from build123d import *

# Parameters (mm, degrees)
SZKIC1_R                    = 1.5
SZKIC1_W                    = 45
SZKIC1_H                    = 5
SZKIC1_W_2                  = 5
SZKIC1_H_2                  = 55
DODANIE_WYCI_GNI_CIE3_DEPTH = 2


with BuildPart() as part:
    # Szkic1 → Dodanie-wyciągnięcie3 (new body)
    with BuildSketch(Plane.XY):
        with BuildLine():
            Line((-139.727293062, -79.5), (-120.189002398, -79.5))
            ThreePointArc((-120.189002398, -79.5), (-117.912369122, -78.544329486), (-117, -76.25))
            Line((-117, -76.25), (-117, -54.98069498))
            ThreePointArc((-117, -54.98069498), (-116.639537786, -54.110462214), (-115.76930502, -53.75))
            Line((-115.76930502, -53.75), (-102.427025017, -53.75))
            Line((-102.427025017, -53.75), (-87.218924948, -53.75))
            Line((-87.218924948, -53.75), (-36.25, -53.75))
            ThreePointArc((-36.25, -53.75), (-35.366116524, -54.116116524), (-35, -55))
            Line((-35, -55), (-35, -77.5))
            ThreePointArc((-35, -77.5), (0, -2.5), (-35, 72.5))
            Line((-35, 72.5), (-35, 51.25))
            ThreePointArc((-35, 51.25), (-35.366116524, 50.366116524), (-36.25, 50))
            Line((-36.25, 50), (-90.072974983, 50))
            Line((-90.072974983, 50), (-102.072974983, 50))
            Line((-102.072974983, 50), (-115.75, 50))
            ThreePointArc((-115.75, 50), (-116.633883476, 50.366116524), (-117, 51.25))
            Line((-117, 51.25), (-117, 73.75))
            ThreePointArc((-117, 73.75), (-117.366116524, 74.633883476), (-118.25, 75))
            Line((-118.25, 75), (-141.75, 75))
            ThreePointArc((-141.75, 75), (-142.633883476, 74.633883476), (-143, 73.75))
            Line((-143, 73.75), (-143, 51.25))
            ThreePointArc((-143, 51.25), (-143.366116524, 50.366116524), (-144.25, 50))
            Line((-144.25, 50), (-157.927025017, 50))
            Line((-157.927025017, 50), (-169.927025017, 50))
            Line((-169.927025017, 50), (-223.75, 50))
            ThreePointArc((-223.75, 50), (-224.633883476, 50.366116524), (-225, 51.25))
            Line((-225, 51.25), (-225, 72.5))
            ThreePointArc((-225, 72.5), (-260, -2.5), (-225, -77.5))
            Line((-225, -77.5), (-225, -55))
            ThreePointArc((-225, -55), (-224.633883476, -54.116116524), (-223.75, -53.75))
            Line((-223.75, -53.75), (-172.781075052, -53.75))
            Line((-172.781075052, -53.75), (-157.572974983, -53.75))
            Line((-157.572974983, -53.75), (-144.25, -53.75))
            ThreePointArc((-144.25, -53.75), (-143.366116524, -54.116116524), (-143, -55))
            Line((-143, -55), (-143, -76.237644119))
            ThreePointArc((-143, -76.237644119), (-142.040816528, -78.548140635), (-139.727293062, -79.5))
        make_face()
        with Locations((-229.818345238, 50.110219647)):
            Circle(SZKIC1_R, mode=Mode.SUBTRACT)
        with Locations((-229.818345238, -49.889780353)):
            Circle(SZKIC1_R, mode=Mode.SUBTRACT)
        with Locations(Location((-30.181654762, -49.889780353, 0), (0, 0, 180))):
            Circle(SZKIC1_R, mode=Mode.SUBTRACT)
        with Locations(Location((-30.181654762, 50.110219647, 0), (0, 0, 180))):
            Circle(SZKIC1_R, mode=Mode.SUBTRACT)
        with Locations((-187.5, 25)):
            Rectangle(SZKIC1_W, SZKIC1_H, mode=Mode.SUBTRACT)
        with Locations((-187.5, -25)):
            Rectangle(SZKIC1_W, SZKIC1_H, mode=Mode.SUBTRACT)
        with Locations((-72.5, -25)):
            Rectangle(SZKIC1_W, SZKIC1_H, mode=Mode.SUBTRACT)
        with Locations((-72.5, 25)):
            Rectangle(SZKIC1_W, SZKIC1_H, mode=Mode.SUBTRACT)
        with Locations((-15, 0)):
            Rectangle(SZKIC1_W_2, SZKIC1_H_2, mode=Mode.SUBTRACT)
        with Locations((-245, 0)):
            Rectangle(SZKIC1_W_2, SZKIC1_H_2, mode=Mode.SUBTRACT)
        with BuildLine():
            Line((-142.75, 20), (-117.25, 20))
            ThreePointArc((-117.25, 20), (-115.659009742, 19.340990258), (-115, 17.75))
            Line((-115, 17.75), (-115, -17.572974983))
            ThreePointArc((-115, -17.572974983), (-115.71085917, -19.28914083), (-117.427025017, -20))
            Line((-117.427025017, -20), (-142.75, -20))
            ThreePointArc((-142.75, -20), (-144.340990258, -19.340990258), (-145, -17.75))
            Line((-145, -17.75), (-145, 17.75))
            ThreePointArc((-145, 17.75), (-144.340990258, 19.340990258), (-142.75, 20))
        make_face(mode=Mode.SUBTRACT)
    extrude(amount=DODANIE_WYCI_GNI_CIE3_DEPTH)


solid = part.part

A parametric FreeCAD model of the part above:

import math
import FreeCAD as App
import Part
import Sketcher
Q = App.Units.Quantity

doc = App.newDocument("Part")
params = doc.addObject("Spreadsheet::Sheet", "Params")
for row, (alias, value) in enumerate([
    ("sketch1_diameter", "3 mm"),
    ("sketch1_width", "5 mm"),
    ("sketch1_width2", "45 mm"),
    ("sketch1_height", "55 mm"),
    ("sketch1_radius", "1.25 mm"),
    ("pad1_length", "2 mm"),
], start=1):
    params.set(f"A{row}", alias)
    params.set(f"B{row}", "=" + value)
    params.setAlias(f"B{row}", alias)

body = doc.addObject("PartDesign::Body", "Body")

# Sketch on XY plane
sketch1 = body.newObject("Sketcher::SketchObject", "Sketch")
sketch1.AttachmentSupport = (doc.getObject("XY_Plane"), [""])
sketch1.MapMode = "FlatFace"
sketch1.addGeometry(Part.LineSegment(App.Vector(-139.727293, -79.5, 0), App.Vector(-120.189002, -79.5, 0)), False)
sketch1.addGeometry(Part.ArcOfCircle(Part.Circle(App.Vector(-120.189002, -76.310425, 0), App.Vector(0, 0, 1), 3.189575), math.radians(-90), math.radians(1.08551)), False)
sketch1.addGeometry(Part.LineSegment(App.Vector(-117, -76.25, 0), App.Vector(-117, -54.980695, 0)), False)
sketch1.addGeometry(Part.ArcOfCircle(Part.Circle(App.Vector(-115.769305, -54.980695, 0), App.Vector(0, 0, 1), 1.230695), math.radians(90), math.radians(180)), False)
sketch1.addGeometry(Part.LineSegment(App.Vector(-115.769305, -53.75, 0), App.Vector(-36.25, -53.75, 0)), False)
sketch1.addGeometry(Part.ArcOfCircle(Part.Circle(App.Vector(-36.25, -55, 0), App.Vector(0, 0, 1), 1.25), math.radians(0), math.radians(90)), False)
sketch1.addGeometry(Part.LineSegment(App.Vector(-35, -55, 0), App.Vector(-35, -77.5, 0)), False)
sketch1.addGeometry(Part.ArcOfCircle(Part.Circle(App.Vector(-97.857143, -2.5, 0), App.Vector(0, 0, 1), 97.857143), math.radians(-50.033787), math.radians(50.033787)), False)
sketch1.addGeometry(Part.LineSegment(App.Vector(-35, 72.5, 0), App.Vector(-35, 51.25, 0)), False)
sketch1.addGeometry(Part.ArcOfCircle(Part.Circle(App.Vector(-36.25, 51.25, 0), App.Vector(0, 0, 1), 1.25), math.radians(-90), math.radians(0)), False)
sketch1.addGeometry(Part.LineSegment(App.Vector(-36.25, 50, 0), App.Vector(-115.75, 50, 0)), False)
sketch1.addGeometry(Part.ArcOfCircle(Part.Circle(App.Vector(-115.75, 51.25, 0), App.Vector(0, 0, 1), 1.25), math.radians(-180), math.radians(-90)), False)
sketch1.addGeometry(Part.LineSegment(App.Vector(-117, 51.25, 0), App.Vector(-117, 73.75, 0)), False)
sketch1.addGeometry(Part.ArcOfCircle(Part.Circle(App.Vector(-118.25, 73.75, 0), App.Vector(0, 0, 1), 1.25), math.radians(0), math.radians(90)), False)
sketch1.addGeometry(Part.LineSegment(App.Vector(-118.25, 75, 0), App.Vector(-141.75, 75, 0)), False)
sketch1.addGeometry(Part.ArcOfCircle(Part.Circle(App.Vector(-141.75, 73.75, 0), App.Vector(0, 0, 1), 1.25), math.radians(90), math.radians(180)), False)
sketch1.addGeometry(Part.LineSegment(App.Vector(-143, 73.75, 0), App.Vector(-143, 51.25, 0)), False)
sketch1.addGeometry(Part.ArcOfCircle(Part.Circle(App.Vector(-144.25, 51.25, 0), App.Vector(0, 0, 1), 1.25), math.radians(-90), math.radians(0)), False)
sketch1.addGeometry(Part.LineSegment(App.Vector(-144.25, 50, 0), App.Vector(-223.75, 50, 0)), False)
sketch1.addGeometry(Part.ArcOfCircle(Part.Circle(App.Vector(-223.75, 51.25, 0), App.Vector(0, 0, 1), 1.25), math.radians(-180), math.radians(-90)), False)
sketch1.addGeometry(Part.LineSegment(App.Vector(-225, 51.25, 0), App.Vector(-225, 72.5, 0)), False)
sketch1.addGeometry(Part.ArcOfCircle(Part.Circle(App.Vector(-162.142857, -2.5, 0), App.Vector(0, 0, 1), 97.857143), math.radians(129.966213), math.radians(230.033787)), False)
sketch1.addGeometry(Part.LineSegment(App.Vector(-225, -77.5, 0), App.Vector(-225, -55, 0)), False)
sketch1.addGeometry(Part.ArcOfCircle(Part.Circle(App.Vector(-223.75, -55, 0), App.Vector(0, 0, 1), 1.25), math.radians(90), math.radians(180)), False)
sketch1.addGeometry(Part.LineSegment(App.Vector(-223.75, -53.75, 0), App.Vector(-144.25, -53.75, 0)), False)
sketch1.addGeometry(Part.ArcOfCircle(Part.Circle(App.Vector(-144.25, -55, 0), App.Vector(0, 0, 1), 1.25), math.radians(0), math.radians(90)), False)
sketch1.addGeometry(Part.LineSegment(App.Vector(-143, -55, 0), App.Vector(-143, -76.237644, 0)), False)
sketch1.addGeometry(Part.ArcOfCircle(Part.Circle(App.Vector(-139.737628, -76.237644, 0), App.Vector(0, 0, 1), 3.262372), math.radians(180), math.radians(270.181504)), False)
sketch1.addGeometry(Part.Circle(App.Vector(-229.818345, -49.88978, 0), App.Vector(0, 0, 1), 1.5), False)
sketch1.addGeometry(Part.LineSegment(App.Vector(-242.5, -27.5, 0), App.Vector(-247.5, -27.5, 0)), False)
sketch1.addGeometry(Part.LineSegment(App.Vector(-247.5, -27.5, 0), App.Vector(-247.5, 27.5, 0)), False)
sketch1.addGeometry(Part.LineSegment(App.Vector(-247.5, 27.5, 0), App.Vector(-242.5, 27.5, 0)), False)
sketch1.addGeometry(Part.LineSegment(App.Vector(-242.5, 27.5, 0), App.Vector(-242.5, -27.5, 0)), False)
sketch1.addGeometry(Part.LineSegment(App.Vector(-165, -27.5, 0), App.Vector(-210, -27.5, 0)), False)
sketch1.addGeometry(Part.LineSegment(App.Vector(-210, -27.5, 0), App.Vector(-210, -22.5, 0)), False)
sketch1.addGeometry(Part.LineSegment(App.Vector(-210, -22.5, 0), App.Vector(-165, -22.5, 0)), False)
sketch1.addGeometry(Part.LineSegment(App.Vector(-165, -22.5, 0), App.Vector(-165, -27.5, 0)), False)
sketch1.addGeometry(Part.Circle(App.Vector(-30.181655, -49.88978, 0), App.Vector(0, 0, 1), 1.5), False)
sketch1.addGeometry(Part.LineSegment(App.Vector(-50, -27.5, 0), App.Vector(-95, -27.5, 0)), False)
sketch1.addGeometry(Part.LineSegment(App.Vector(-95, -27.5, 0), App.Vector(-95, -22.5, 0)), False)
sketch1.addGeometry(Part.LineSegment(App.Vector(-95, -22.5, 0), App.Vector(-50, -22.5, 0)), False)
sketch1.addGeometry(Part.LineSegment(App.Vector(-50, -22.5, 0), App.Vector(-50, -27.5, 0)), False)
sketch1.addGeometry(Part.ArcOfCircle(Part.Circle(App.Vector(-142.75, 17.75, 0), App.Vector(0, 0, 1), 2.25), math.radians(90), math.radians(180)), False)
sketch1.addGeometry(Part.LineSegment(App.Vector(-142.75, 20, 0), App.Vector(-117.25, 20, 0)), False)
sketch1.addGeometry(Part.ArcOfCircle(Part.Circle(App.Vector(-117.25, 17.75, 0), App.Vector(0, 0, 1), 2.25), math.radians(0), math.radians(90)), False)
sketch1.addGeometry(Part.LineSegment(App.Vector(-115, 17.75, 0), App.Vector(-115, -17.572975, 0)), False)
sketch1.addGeometry(Part.ArcOfCircle(Part.Circle(App.Vector(-117.427025, -17.572975, 0), App.Vector(0, 0, 1), 2.427025), math.radians(-90), math.radians(0)), False)
sketch1.addGeometry(Part.LineSegment(App.Vector(-117.427025, -20, 0), App.Vector(-142.75, -20, 0)), False)
sketch1.addGeometry(Part.ArcOfCircle(Part.Circle(App.Vector(-142.75, -17.75, 0), App.Vector(0, 0, 1), 2.25), math.radians(180), math.radians(270)), False)
sketch1.addGeometry(Part.LineSegment(App.Vector(-145, -17.75, 0), App.Vector(-145, 17.75, 0)), False)
sketch1.addGeometry(Part.LineSegment(App.Vector(-12.5, -27.5, 0), App.Vector(-17.5, -27.5, 0)), False)
sketch1.addGeometry(Part.LineSegment(App.Vector(-17.5, -27.5, 0), App.Vector(-17.5, 27.5, 0)), False)
sketch1.addGeometry(Part.LineSegment(App.Vector(-17.5, 27.5, 0), App.Vector(-12.5, 27.5, 0)), False)
sketch1.addGeometry(Part.LineSegment(App.Vector(-12.5, 27.5, 0), App.Vector(-12.5, -27.5, 0)), False)
sketch1.addGeometry(Part.LineSegment(App.Vector(-165, 22.5, 0), App.Vector(-210, 22.5, 0)), False)
sketch1.addGeometry(Part.LineSegment(App.Vector(-210, 22.5, 0), App.Vector(-210, 27.5, 0)), False)
sketch1.addGeometry(Part.LineSegment(App.Vector(-210, 27.5, 0), App.Vector(-165, 27.5, 0)), False)
sketch1.addGeometry(Part.LineSegment(App.Vector(-165, 27.5, 0), App.Vector(-165, 22.5, 0)), False)
sketch1.addGeometry(Part.Circle(App.Vector(-229.818345, 50.11022, 0), App.Vector(0, 0, 1), 1.5), False)
sketch1.addGeometry(Part.LineSegment(App.Vector(-50, 22.5, 0), App.Vector(-95, 22.5, 0)), False)
sketch1.addGeometry(Part.LineSegment(App.Vector(-95, 22.5, 0), App.Vector(-95, 27.5, 0)), False)
sketch1.addGeometry(Part.LineSegment(App.Vector(-95, 27.5, 0), App.Vector(-50, 27.5, 0)), False)
sketch1.addGeometry(Part.LineSegment(App.Vector(-50, 27.5, 0), App.Vector(-50, 22.5, 0)), False)
sketch1.addGeometry(Part.Circle(App.Vector(-30.181655, 50.11022, 0), App.Vector(0, 0, 1), 1.5), False)
sketch1.addConstraint(Sketcher.Constraint("Tangent", 0, 2, 1, 1))
sketch1.addConstraint(Sketcher.Constraint("Coincident", 1, 2, 2, 1))
sketch1.addConstraint(Sketcher.Constraint("Tangent", 2, 2, 3, 2))
sketch1.addConstraint(Sketcher.Constraint("Tangent", 3, 1, 4, 1))
sketch1.addConstraint(Sketcher.Constraint("Tangent", 4, 2, 5, 2))
sketch1.addConstraint(Sketcher.Constraint("Tangent", 5, 1, 6, 1))
sketch1.addConstraint(Sketcher.Constraint("Coincident", 6, 2, 7, 1))
sketch1.addConstraint(Sketcher.Constraint("Coincident", 7, 2, 8, 1))
sketch1.addConstraint(Sketcher.Constraint("Tangent", 8, 2, 9, 2))
sketch1.addConstraint(Sketcher.Constraint("Tangent", 9, 1, 10, 1))
sketch1.addConstraint(Sketcher.Constraint("Tangent", 10, 2, 11, 2))
sketch1.addConstraint(Sketcher.Constraint("Tangent", 11, 1, 12, 1))
sketch1.addConstraint(Sketcher.Constraint("Tangent", 12, 2, 13, 1))
sketch1.addConstraint(Sketcher.Constraint("Tangent", 13, 2, 14, 1))
sketch1.addConstraint(Sketcher.Constraint("Tangent", 14, 2, 15, 1))
sketch1.addConstraint(Sketcher.Constraint("Tangent", 15, 2, 16, 1))
sketch1.addConstraint(Sketcher.Constraint("Tangent", 16, 2, 17, 2))
sketch1.addConstraint(Sketcher.Constraint("Tangent", 17, 1, 18, 1))
sketch1.addConstraint(Sketcher.Constraint("Tangent", 18, 2, 19, 2))
sketch1.addConstraint(Sketcher.Constraint("Tangent", 19, 1, 20, 1))
sketch1.addConstraint(Sketcher.Constraint("Coincident", 20, 2, 21, 1))
sketch1.addConstraint(Sketcher.Constraint("Coincident", 21, 2, 22, 1))
sketch1.addConstraint(Sketcher.Constraint("Tangent", 22, 2, 23, 2))
sketch1.addConstraint(Sketcher.Constraint("Tangent", 23, 1, 24, 1))
sketch1.addConstraint(Sketcher.Constraint("Tangent", 24, 2, 25, 2))
sketch1.addConstraint(Sketcher.Constraint("Tangent", 25, 1, 26, 1))
sketch1.addConstraint(Sketcher.Constraint("Tangent", 26, 2, 27, 1))
sketch1.addConstraint(Sketcher.Constraint("Coincident", 27, 2, 0, 1))
sketch1.addConstraint(Sketcher.Constraint("Coincident", 29, 2, 30, 1))
sketch1.addConstraint(Sketcher.Constraint("Coincident", 30, 2, 31, 1))
sketch1.addConstraint(Sketcher.Constraint("Coincident", 31, 2, 32, 1))
sketch1.addConstraint(Sketcher.Constraint("Coincident", 32, 2, 29, 1))
sketch1.addConstraint(Sketcher.Constraint("Coincident", 33, 2, 34, 1))
sketch1.addConstraint(Sketcher.Constraint("Coincident", 34, 2, 35, 1))
sketch1.addConstraint(Sketcher.Constraint("Coincident", 35, 2, 36, 1))
sketch1.addConstraint(Sketcher.Constraint("Coincident", 36, 2, 33, 1))
sketch1.addConstraint(Sketcher.Constraint("Coincident", 38, 2, 39, 1))
sketch1.addConstraint(Sketcher.Constraint("Coincident", 39, 2, 40, 1))
sketch1.addConstraint(Sketcher.Constraint("Coincident", 40, 2, 41, 1))
sketch1.addConstraint(Sketcher.Constraint("Coincident", 41, 2, 38, 1))
sketch1.addConstraint(Sketcher.Constraint("Tangent", 42, 1, 43, 1))
sketch1.addConstraint(Sketcher.Constraint("Tangent", 43, 2, 44, 2))
sketch1.addConstraint(Sketcher.Constraint("Tangent", 44, 1, 45, 1))
sketch1.addConstraint(Sketcher.Constraint("Tangent", 45, 2, 46, 2))
sketch1.addConstraint(Sketcher.Constraint("Tangent", 46, 1, 47, 1))
sketch1.addConstraint(Sketcher.Constraint("Tangent", 47, 2, 48, 2))
sketch1.addConstraint(Sketcher.Constraint("Tangent", 48, 1, 49, 1))
sketch1.addConstraint(Sketcher.Constraint("Tangent", 49, 2, 42, 2))
sketch1.addConstraint(Sketcher.Constraint("Coincident", 50, 2, 51, 1))
sketch1.addConstraint(Sketcher.Constraint("Coincident", 51, 2, 52, 1))
sketch1.addConstraint(Sketcher.Constraint("Coincident", 52, 2, 53, 1))
sketch1.addConstraint(Sketcher.Constraint("Coincident", 53, 2, 50, 1))
sketch1.addConstraint(Sketcher.Constraint("Coincident", 54, 2, 55, 1))
sketch1.addConstraint(Sketcher.Constraint("Coincident", 55, 2, 56, 1))
sketch1.addConstraint(Sketcher.Constraint("Coincident", 56, 2, 57, 1))
sketch1.addConstraint(Sketcher.Constraint("Coincident", 57, 2, 54, 1))
sketch1.addConstraint(Sketcher.Constraint("Coincident", 59, 2, 60, 1))
sketch1.addConstraint(Sketcher.Constraint("Coincident", 60, 2, 61, 1))
sketch1.addConstraint(Sketcher.Constraint("Coincident", 61, 2, 62, 1))
sketch1.addConstraint(Sketcher.Constraint("Coincident", 62, 2, 59, 1))
sketch1.addConstraint(Sketcher.Constraint("Horizontal", 0))
sketch1.addConstraint(Sketcher.Constraint("Vertical", 2))
sketch1.addConstraint(Sketcher.Constraint("Horizontal", 4))
sketch1.addConstraint(Sketcher.Constraint("Vertical", 6))
sketch1.addConstraint(Sketcher.Constraint("Vertical", 8))
sketch1.addConstraint(Sketcher.Constraint("Horizontal", 10))
sketch1.addConstraint(Sketcher.Constraint("Vertical", 12))
sketch1.addConstraint(Sketcher.Constraint("Horizontal", 14))
sketch1.addConstraint(Sketcher.Constraint("Vertical", 16))
sketch1.addConstraint(Sketcher.Constraint("Horizontal", 18))
sketch1.addConstraint(Sketcher.Constraint("Vertical", 20))
sketch1.addConstraint(Sketcher.Constraint("Vertical", 22))
sketch1.addConstraint(Sketcher.Constraint("Horizontal", 24))
sketch1.addConstraint(Sketcher.Constraint("Vertical", 26))
sketch1.addConstraint(Sketcher.Constraint("Horizontal", 29))
sketch1.addConstraint(Sketcher.Constraint("Vertical", 30))
sketch1.addConstraint(Sketcher.Constraint("Horizontal", 31))
sketch1.addConstraint(Sketcher.Constraint("Vertical", 32))
sketch1.addConstraint(Sketcher.Constraint("Horizontal", 33))
sketch1.addConstraint(Sketcher.Constraint("Vertical", 34))
sketch1.addConstraint(Sketcher.Constraint("Horizontal", 35))
sketch1.addConstraint(Sketcher.Constraint("Vertical", 36))
sketch1.addConstraint(Sketcher.Constraint("Horizontal", 38))
sketch1.addConstraint(Sketcher.Constraint("Vertical", 39))
sketch1.addConstraint(Sketcher.Constraint("Horizontal", 40))
sketch1.addConstraint(Sketcher.Constraint("Vertical", 41))
sketch1.addConstraint(Sketcher.Constraint("Horizontal", 43))
sketch1.addConstraint(Sketcher.Constraint("Vertical", 45))
sketch1.addConstraint(Sketcher.Constraint("Horizontal", 47))
sketch1.addConstraint(Sketcher.Constraint("Vertical", 49))
sketch1.addConstraint(Sketcher.Constraint("Horizontal", 50))
sketch1.addConstraint(Sketcher.Constraint("Vertical", 51))
sketch1.addConstraint(Sketcher.Constraint("Horizontal", 52))
sketch1.addConstraint(Sketcher.Constraint("Vertical", 53))
sketch1.addConstraint(Sketcher.Constraint("Horizontal", 54))
sketch1.addConstraint(Sketcher.Constraint("Vertical", 55))
sketch1.addConstraint(Sketcher.Constraint("Horizontal", 56))
sketch1.addConstraint(Sketcher.Constraint("Vertical", 57))
sketch1.addConstraint(Sketcher.Constraint("Horizontal", 59))
sketch1.addConstraint(Sketcher.Constraint("Vertical", 60))
sketch1.addConstraint(Sketcher.Constraint("Horizontal", 61))
sketch1.addConstraint(Sketcher.Constraint("Vertical", 62))
sketch1.addConstraint(Sketcher.Constraint("Equal", 5, 9))
sketch1.addConstraint(Sketcher.Constraint("Equal", 9, 11))
sketch1.addConstraint(Sketcher.Constraint("Equal", 11, 13))
sketch1.addConstraint(Sketcher.Constraint("Equal", 13, 15))
sketch1.addConstraint(Sketcher.Constraint("Equal", 15, 17))
sketch1.addConstraint(Sketcher.Constraint("Equal", 17, 19))
sketch1.addConstraint(Sketcher.Constraint("Equal", 7, 21))
sketch1.addConstraint(Sketcher.Constraint("Equal", 19, 23))
sketch1.addConstraint(Sketcher.Constraint("Equal", 23, 25))
sketch1.addConstraint(Sketcher.Constraint("Equal", 28, 37))
sketch1.addConstraint(Sketcher.Constraint("Equal", 42, 44))
sketch1.addConstraint(Sketcher.Constraint("Equal", 44, 48))
sketch1.addConstraint(Sketcher.Constraint("Equal", 37, 58))
sketch1.addConstraint(Sketcher.Constraint("Equal", 58, 63))
sketch1.addConstraint(Sketcher.Constraint("Symmetric", 34, 2, 54, 2, -1))
sketch1.addConstraint(Sketcher.Constraint("Symmetric", 36, 2, 56, 2, -1))
sketch1.addConstraint(Sketcher.Constraint("Symmetric", 39, 2, 59, 2, -1))
sketch1.addConstraint(Sketcher.Constraint("Symmetric", 41, 2, 61, 2, -1))
sketch1.addConstraint(Sketcher.Constraint("Horizontal", 11, 3, 17, 3))
sketch1.addConstraint(Sketcher.Constraint("Horizontal", 7, 3, 21, 3))
sketch1.addConstraint(Sketcher.Constraint("Horizontal", 5, 3, 23, 3))
sketch1.addConstraint(Sketcher.Constraint("Horizontal", 28, 3, 37, 3))
sketch1.addConstraint(Sketcher.Constraint("Horizontal", 58, 3, 63, 3))
sketch1.addConstraint(Sketcher.Constraint("Horizontal", 7, 2, 20, 2))
sketch1.addConstraint(Sketcher.Constraint("Horizontal", 6, 2, 21, 2))
sketch1.addConstraint(Sketcher.Constraint("Horizontal", 32, 2, 33, 2))
sketch1.addConstraint(Sketcher.Constraint("Horizontal", 36, 2, 38, 2))
sketch1.addConstraint(Sketcher.Constraint("Horizontal", 35, 2, 39, 2))
sketch1.addConstraint(Sketcher.Constraint("Horizontal", 41, 2, 50, 2))
sketch1.addConstraint(Sketcher.Constraint("Horizontal", 31, 2, 51, 2))
sketch1.addConstraint(Sketcher.Constraint("Horizontal", 52, 2, 55, 2))
sketch1.addConstraint(Sketcher.Constraint("Vertical", 5, 3, 9, 3))
sketch1.addConstraint(Sketcher.Constraint("Vertical", 17, 3, 25, 3))
sketch1.addConstraint(Sketcher.Constraint("Vertical", 28, 3, 58, 3))
sketch1.addConstraint(Sketcher.Constraint("Vertical", 37, 3, 63, 3))
sketch1.addConstraint(Sketcher.Constraint("Vertical", 2, 2, 11, 1))
sketch1.addConstraint(Sketcher.Constraint("Equal", 10, 18))
sketch1.addConstraint(Sketcher.Constraint("Equal", 35, 38))
sketch1.addConstraint(Sketcher.Constraint("Equal", 31, 50))
sketch1.addConstraint(Sketcher.Constraint("Equal", 6, 12))
sketch1.addConstraint(Sketcher.Constraint("Equal", 52, 34))
sketch1.addConstraint(Sketcher.Constraint("Diameter", 28, Q("3 mm")))
sketch1.addConstraint(Sketcher.Constraint("DistanceX", 29, 2, 29, 1, Q("5 mm")))
sketch1.addConstraint(Sketcher.Constraint("DistanceX", 33, 2, 33, 1, Q("45 mm")))
sketch1.addConstraint(Sketcher.Constraint("DistanceY", 30, 1, 30, 2, Q("55 mm")))
sketch1.addConstraint(Sketcher.Constraint("Radius", 5, Q("1.25 mm")))
sketch1.addConstraint(Sketcher.Constraint("Radius", 42, Q("2.25 mm")))
sketch1.addConstraint(Sketcher.Constraint("DistanceX", 10, 2, 10, 1, Q("79.5 mm")))
sketch1.addConstraint(Sketcher.Constraint("DistanceX", 14, 2, 14, 1, Q("23.5 mm")))
sketch1.addConstraint(Sketcher.Constraint("DistanceX", 43, 1, 43, 2, Q("25.5 mm")))
sketch1.addConstraint(Sketcher.Constraint("DistanceY", 6, 2, 6, 1, Q("22.5 mm")))
sketch1.addConstraint(Sketcher.Constraint("DistanceY", 49, 1, 49, 2, Q("35.5 mm")))
sketch1.addConstraint(Sketcher.Constraint("DistanceY", 5, 3, -1, 1, Q("55 mm")))
sketch1.addConstraint(Sketcher.Constraint("DistanceX", 1, 2, -1, 1, Q("117 mm")))
sketch1.addConstraint(Sketcher.Constraint("DistanceY", -1, 1, 9, 1, Q("50 mm")))
sketch1.addConstraint(Sketcher.Constraint("DistanceX", 33, 2, -1, 1, Q("210 mm")))
sketch1.addConstraint(Sketcher.Constraint("DistanceX", 38, 2, -1, 1, Q("95 mm")))
sketch1.addConstraint(Sketcher.Constraint("DistanceY", -1, 1, 42, 1, Q("20 mm")))
sketch1.addConstraint(Sketcher.Constraint("DistanceX", 44, 1, -1, 1, Q("115 mm")))
sketch1.addConstraint(Sketcher.Constraint("DistanceY", 8, 2, 8, 1, Q("21.25 mm")))
sketch1.addConstraint(Sketcher.Constraint("DistanceY", 0, 2, -1, 1, Q("79.5 mm")))
sketch1.addConstraint(Sketcher.Constraint("DistanceX", 29, 2, -1, 1, Q("247.5 mm")))
sketch1.addConstraint(Sketcher.Constraint("DistanceX", 50, 2, -1, 1, Q("17.5 mm")))
sketch1.addConstraint(Sketcher.Constraint("DistanceY", 1, 2, -1, 1, Q("76.25 mm")))
sketch1.addConstraint(Sketcher.Constraint("Radius", 1, Q("3.189575 mm")))
sketch1.addConstraint(Sketcher.Constraint("Radius", 3, Q("1.230695 mm")))
sketch1.addConstraint(Sketcher.Constraint("Radius", 7, Q("97.857143 mm")))
sketch1.addConstraint(Sketcher.Constraint("Radius", 27, Q("3.262372 mm")))
sketch1.addConstraint(Sketcher.Constraint("Radius", 46, Q("2.427025 mm")))
sketch1.addConstraint(Sketcher.Constraint("DistanceX", 0, 1, 0, 2, Q("19.538291 mm")))
sketch1.addConstraint(Sketcher.Constraint("DistanceY", 28, 3, -1, 1, Q("49.88978 mm")))
sketch1.addConstraint(Sketcher.Constraint("DistanceY", -1, 1, 58, 3, Q("50.11022 mm")))
sketch1.addConstraint(Sketcher.Constraint("DistanceX", 28, 3, -1, 1, Q("229.818345 mm")))
sketch1.addConstraint(Sketcher.Constraint("DistanceX", 37, 3, -1, 1, Q("30.181655 mm")))
sketch1.setExpression("Constraints[143]", "Params.sketch1_diameter")
sketch1.setExpression("Constraints[144]", "Params.sketch1_width")
sketch1.setExpression("Constraints[145]", "Params.sketch1_width2")
sketch1.setExpression("Constraints[146]", "Params.sketch1_height")
sketch1.setExpression("Constraints[147]", "Params.sketch1_radius")
pad1 = body.newObject("PartDesign::Pad", "Pad")
pad1.Profile = sketch1
pad1.setExpression("Length", "Params.pad1_length")

doc.recompute()
